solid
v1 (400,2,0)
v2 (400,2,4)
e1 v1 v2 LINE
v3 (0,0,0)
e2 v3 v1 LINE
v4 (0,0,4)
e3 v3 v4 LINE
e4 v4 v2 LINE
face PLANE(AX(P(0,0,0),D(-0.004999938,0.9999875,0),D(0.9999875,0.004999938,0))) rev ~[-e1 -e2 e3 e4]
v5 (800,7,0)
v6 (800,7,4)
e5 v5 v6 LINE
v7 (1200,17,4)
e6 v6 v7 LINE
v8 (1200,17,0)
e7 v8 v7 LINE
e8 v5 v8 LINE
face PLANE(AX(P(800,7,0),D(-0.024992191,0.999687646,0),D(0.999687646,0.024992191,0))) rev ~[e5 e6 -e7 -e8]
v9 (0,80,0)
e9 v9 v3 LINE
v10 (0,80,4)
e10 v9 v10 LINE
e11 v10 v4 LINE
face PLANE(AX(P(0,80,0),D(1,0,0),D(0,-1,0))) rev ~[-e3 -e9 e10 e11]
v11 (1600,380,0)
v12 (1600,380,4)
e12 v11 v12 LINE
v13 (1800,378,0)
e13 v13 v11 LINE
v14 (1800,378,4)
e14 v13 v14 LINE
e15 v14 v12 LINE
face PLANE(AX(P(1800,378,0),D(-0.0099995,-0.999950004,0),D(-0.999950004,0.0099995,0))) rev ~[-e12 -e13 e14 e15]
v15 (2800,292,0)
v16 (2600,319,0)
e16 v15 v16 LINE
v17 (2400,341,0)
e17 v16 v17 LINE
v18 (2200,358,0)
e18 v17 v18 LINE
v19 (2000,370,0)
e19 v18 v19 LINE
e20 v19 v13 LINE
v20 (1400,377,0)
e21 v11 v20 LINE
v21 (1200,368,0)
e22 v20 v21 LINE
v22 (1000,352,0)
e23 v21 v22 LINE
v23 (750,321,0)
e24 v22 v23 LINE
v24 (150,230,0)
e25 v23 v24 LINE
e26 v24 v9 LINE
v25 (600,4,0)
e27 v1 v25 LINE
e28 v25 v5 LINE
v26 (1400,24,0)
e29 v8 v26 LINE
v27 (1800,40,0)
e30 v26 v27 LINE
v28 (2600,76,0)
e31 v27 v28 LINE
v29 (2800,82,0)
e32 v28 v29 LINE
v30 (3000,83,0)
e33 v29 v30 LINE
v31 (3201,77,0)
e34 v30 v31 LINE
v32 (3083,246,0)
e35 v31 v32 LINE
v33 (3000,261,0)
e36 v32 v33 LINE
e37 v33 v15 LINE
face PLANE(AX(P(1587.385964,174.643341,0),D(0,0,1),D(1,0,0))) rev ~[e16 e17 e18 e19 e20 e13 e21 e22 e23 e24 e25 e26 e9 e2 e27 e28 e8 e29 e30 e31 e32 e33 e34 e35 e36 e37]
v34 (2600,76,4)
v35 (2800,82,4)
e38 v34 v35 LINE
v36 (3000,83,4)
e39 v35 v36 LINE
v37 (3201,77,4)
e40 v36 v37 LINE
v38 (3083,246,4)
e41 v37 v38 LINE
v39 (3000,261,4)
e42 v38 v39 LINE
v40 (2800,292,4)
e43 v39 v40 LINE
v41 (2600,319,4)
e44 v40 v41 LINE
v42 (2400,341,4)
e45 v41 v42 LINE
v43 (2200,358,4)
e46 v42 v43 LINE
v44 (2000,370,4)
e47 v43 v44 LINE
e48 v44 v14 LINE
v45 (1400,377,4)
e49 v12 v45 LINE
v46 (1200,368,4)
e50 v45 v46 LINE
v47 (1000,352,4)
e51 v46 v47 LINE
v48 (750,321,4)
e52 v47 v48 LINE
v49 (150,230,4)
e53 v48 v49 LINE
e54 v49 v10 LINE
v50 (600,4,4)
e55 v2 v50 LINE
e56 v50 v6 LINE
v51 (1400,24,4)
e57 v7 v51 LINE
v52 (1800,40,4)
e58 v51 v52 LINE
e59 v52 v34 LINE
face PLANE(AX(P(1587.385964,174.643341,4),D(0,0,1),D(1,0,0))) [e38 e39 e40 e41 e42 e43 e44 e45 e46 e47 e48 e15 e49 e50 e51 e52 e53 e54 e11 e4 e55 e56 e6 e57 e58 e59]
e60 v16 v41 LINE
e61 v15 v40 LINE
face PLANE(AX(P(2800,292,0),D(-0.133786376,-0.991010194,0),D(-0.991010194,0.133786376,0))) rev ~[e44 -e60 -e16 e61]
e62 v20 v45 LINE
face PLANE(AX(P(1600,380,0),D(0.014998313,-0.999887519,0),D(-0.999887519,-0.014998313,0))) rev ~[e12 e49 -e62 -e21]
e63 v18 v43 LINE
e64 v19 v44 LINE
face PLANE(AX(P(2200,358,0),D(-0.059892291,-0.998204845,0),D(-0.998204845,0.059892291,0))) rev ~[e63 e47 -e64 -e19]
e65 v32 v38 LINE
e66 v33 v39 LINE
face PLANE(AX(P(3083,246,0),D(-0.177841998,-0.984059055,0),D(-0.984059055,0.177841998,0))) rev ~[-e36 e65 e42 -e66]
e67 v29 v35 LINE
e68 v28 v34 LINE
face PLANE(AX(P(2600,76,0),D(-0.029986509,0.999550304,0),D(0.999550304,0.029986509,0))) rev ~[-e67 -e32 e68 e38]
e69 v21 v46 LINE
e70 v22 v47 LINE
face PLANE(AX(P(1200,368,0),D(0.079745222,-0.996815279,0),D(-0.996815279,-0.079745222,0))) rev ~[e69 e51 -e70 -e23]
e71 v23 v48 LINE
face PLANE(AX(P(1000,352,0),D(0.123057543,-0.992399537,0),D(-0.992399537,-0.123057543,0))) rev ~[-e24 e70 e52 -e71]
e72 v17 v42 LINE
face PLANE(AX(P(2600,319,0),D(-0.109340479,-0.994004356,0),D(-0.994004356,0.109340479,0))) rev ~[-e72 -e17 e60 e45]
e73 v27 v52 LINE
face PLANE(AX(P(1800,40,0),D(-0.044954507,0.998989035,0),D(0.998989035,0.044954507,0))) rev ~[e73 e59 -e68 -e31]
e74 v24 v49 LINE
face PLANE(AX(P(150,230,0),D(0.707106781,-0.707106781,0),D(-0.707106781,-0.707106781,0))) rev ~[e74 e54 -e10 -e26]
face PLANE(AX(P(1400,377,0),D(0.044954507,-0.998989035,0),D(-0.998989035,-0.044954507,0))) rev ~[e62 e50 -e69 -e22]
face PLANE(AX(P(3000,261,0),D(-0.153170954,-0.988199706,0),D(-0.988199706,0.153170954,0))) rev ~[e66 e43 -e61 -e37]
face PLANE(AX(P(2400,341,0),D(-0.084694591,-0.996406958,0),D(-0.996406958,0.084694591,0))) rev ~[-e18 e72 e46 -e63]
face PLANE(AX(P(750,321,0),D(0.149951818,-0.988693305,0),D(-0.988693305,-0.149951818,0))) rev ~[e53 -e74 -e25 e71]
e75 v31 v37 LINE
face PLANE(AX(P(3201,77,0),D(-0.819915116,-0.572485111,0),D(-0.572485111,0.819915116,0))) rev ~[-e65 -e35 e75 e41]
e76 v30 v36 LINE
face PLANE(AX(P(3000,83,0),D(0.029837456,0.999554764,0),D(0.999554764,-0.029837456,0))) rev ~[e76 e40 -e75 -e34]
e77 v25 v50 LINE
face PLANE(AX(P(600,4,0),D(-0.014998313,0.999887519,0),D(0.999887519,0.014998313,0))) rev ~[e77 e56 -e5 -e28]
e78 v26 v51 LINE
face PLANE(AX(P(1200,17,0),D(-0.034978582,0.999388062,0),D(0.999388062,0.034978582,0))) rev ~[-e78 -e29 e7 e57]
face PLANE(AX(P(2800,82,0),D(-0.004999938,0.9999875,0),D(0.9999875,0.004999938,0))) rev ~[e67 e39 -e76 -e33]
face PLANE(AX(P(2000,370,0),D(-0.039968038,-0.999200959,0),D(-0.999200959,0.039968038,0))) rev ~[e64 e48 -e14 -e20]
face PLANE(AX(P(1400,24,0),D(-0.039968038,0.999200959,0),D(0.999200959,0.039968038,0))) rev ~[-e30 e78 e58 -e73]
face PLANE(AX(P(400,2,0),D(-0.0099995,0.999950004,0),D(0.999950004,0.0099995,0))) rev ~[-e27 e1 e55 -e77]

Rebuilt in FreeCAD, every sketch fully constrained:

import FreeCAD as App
import Part
import Sketcher
Q = App.Units.Quantity

doc = App.newDocument("Part")
body = doc.addObject("PartDesign::Body", "Body")

sketch1 = doc.addObject("Sketcher::SketchObject", "Sketch")
body.addObject(sketch1)
sketch1.AttachmentSupport = (doc.XY_Plane, [""])
sketch1.MapMode = "FlatFace"
sketch1.addGeometry([
    Part.LineSegment(App.Vector(0, 80, 0), App.Vector(0, 0, 0)),
    Part.LineSegment(App.Vector(0, 0, 0), App.Vector(400, 2, 0)),
    Part.LineSegment(App.Vector(400, 2, 0), App.Vector(600, 4, 0)),
    Part.LineSegment(App.Vector(600, 4, 0), App.Vector(800, 7, 0)),
    Part.LineSegment(App.Vector(800, 7, 0), App.Vector(1200, 17, 0)),
    Part.LineSegment(App.Vector(1200, 17, 0), App.Vector(1400, 24, 0)),
    Part.LineSegment(App.Vector(1400, 24, 0), App.Vector(1800, 40, 0)),
    Part.LineSegment(App.Vector(1800, 40, 0), App.Vector(2600, 76, 0)),
    Part.LineSegment(App.Vector(2600, 76, 0), App.Vector(2800, 82, 0)),
    Part.LineSegment(App.Vector(2800, 82, 0), App.Vector(3000, 83, 0)),
    Part.LineSegment(App.Vector(3000, 83, 0), App.Vector(3201, 77, 0)),
    Part.LineSegment(App.Vector(3201, 77, 0), App.Vector(3083, 246, 0)),
    Part.LineSegment(App.Vector(3083, 246, 0), App.Vector(3000, 261, 0)),
    Part.LineSegment(App.Vector(3000, 261, 0), App.Vector(2800, 292, 0)),
    Part.LineSegment(App.Vector(2800, 292, 0), App.Vector(2600, 319, 0)),
    Part.LineSegment(App.Vector(2600, 319, 0), App.Vector(2400, 341, 0)),
    Part.LineSegment(App.Vector(2400, 341, 0), App.Vector(2200, 358, 0)),
    Part.LineSegment(App.Vector(2200, 358, 0), App.Vector(2000, 370, 0)),
    Part.LineSegment(App.Vector(2000, 370, 0), App.Vector(1800, 378, 0)),
    Part.LineSegment(App.Vector(1800, 378, 0), App.Vector(1600, 380, 0)),
    Part.LineSegment(App.Vector(1600, 380, 0), App.Vector(1400, 377, 0)),
    Part.LineSegment(App.Vector(1400, 377, 0), App.Vector(1200, 368, 0)),
    Part.LineSegment(App.Vector(1200, 368, 0), App.Vector(1000, 352, 0)),
    Part.LineSegment(App.Vector(1000, 352, 0), App.Vector(750, 321, 0)),
    Part.LineSegment(App.Vector(750, 321, 0), App.Vector(150, 230, 0)),
    Part.LineSegment(App.Vector(150, 230, 0), App.Vector(0, 80, 0)),
], False)
sketch1.addConstraint([
    Sketcher.Constraint("Coincident", 0, 2, 1, 1),
    Sketcher.Constraint("Coincident", 1, 2, 2, 1),
    Sketcher.Constraint("Coincident", 2, 2, 3, 1),
    Sketcher.Constraint("Coincident", 3, 2, 4, 1),
    Sketcher.Constraint("Coincident", 4, 2, 5, 1),
    Sketcher.Constraint("Coincident", 5, 2, 6, 1),
    Sketcher.Constraint("Coincident", 6, 2, 7, 1),
    Sketcher.Constraint("Coincident", 7, 2, 8, 1),
    Sketcher.Constraint("Coincident", 8, 2, 9, 1),
    Sketcher.Constraint("Coincident", 9, 2, 10, 1),
    Sketcher.Constraint("Coincident", 10, 2, 11, 1),
    Sketcher.Constraint("Coincident", 11, 2, 12, 1),
    Sketcher.Constraint("Coincident", 12, 2, 13, 1),
    Sketcher.Constraint("Coincident", 13, 2, 14, 1),
    Sketcher.Constraint("Coincident", 14, 2, 15, 1),
    Sketcher.Constraint("Coincident", 15, 2, 16, 1),
    Sketcher.Constraint("Coincident", 16, 2, 17, 1),
    Sketcher.Constraint("Coincident", 17, 2, 18, 1),
    Sketcher.Constraint("Coincident", 18, 2, 19, 1),
    Sketcher.Constraint("Coincident", 19, 2, 20, 1),
    Sketcher.Constraint("Coincident", 20, 2, 21, 1),
    Sketcher.Constraint("Coincident", 21, 2, 22, 1),
    Sketcher.Constraint("Coincident", 22, 2, 23, 1),
    Sketcher.Constraint("Coincident", 23, 2, 24, 1),
    Sketcher.Constraint("Coincident", 24, 2, 25, 1),
    Sketcher.Constraint("Coincident", 25, 2, 0, 1),
    Sketcher.Constraint("Vertical", 0),
    Sketcher.Constraint("Coincident", 0, 2, -1, 1),
    Sketcher.Constraint("Parallel", 1, 9),
    Sketcher.Constraint("Parallel", 3, 20),
    Sketcher.Constraint("Parallel", 7, 21),
    Sketcher.Constraint("Vertical", 9, 2, 12, 2),
    Sketcher.Constraint("Vertical", 8, 2, 13, 2),
    Sketcher.Constraint("Vertical", 7, 2, 14, 2),
    Sketcher.Constraint("Vertical", 6, 2, 18, 2),
    Sketcher.Constraint("Vertical", 5, 2, 20, 2),
    Sketcher.Constraint("Vertical", 4, 2, 21, 2),
    Sketcher.Constraint("Equal", 2, 19),
    Sketcher.Constraint("Equal", 3, 20),
    Sketcher.Constraint("DistanceY", 0, 2, 0, 1, Q("80 mm")),
    Sketcher.Constraint("Angle", 25, Q("-135 deg")),
    Sketcher.Constraint("DistanceX", -1, 1, 1, 2, Q("400 mm")),
    Sketcher.Constraint("DistanceY", -1, 1, 1, 2, Q("2 mm")),
    Sketcher.Constraint("DistanceX", -1, 1, 2, 2, Q("600 mm")),
    Sketcher.Constraint("DistanceY", -1, 1, 2, 2, Q("4 mm")),
    Sketcher.Constraint("DistanceX", -1, 1, 3, 2, Q("800 mm")),
    Sketcher.Constraint("DistanceY", -1, 1, 3, 2, Q("7 mm")),
    Sketcher.Constraint("DistanceX", -1, 1, 4, 2, Q("1200 mm")),
    Sketcher.Constraint("DistanceY", -1, 1, 4, 2, Q("17 mm")),
    Sketcher.Constraint("DistanceX", -1, 1, 5, 2, Q("1400 mm")),
    Sketcher.Constraint("DistanceY", -1, 1, 5, 2, Q("24 mm")),
    Sketcher.Constraint("DistanceX", -1, 1, 6, 2, Q("1800 mm")),
    Sketcher.Constraint("DistanceY", -1, 1, 6, 2, Q("40 mm")),
    Sketcher.Constraint("DistanceX", -1, 1, 7, 2, Q("2600 mm")),
    Sketcher.Constraint("DistanceY", -1, 1, 7, 2, Q("76 mm")),
    Sketcher.Constraint("DistanceX", -1, 1, 8, 2, Q("2800 mm")),
    Sketcher.Constraint("DistanceY", -1, 1, 8, 2, Q("82 mm")),
    Sketcher.Constraint("DistanceX", -1, 1, 9, 2, Q("3000 mm")),
    Sketcher.Constraint("DistanceX", -1, 1, 10, 2, Q("3201 mm")),
    Sketcher.Constraint("DistanceY", -1, 1, 10, 2, Q("77 mm")),
    Sketcher.Constraint("DistanceX", -1, 1, 11, 2, Q("3083 mm")),
    Sketcher.Constraint("DistanceY", -1, 1, 11, 2, Q("246 mm")),
    Sketcher.Constraint("DistanceY", -1, 1, 12, 2, Q("261 mm")),
    Sketcher.Constraint("DistanceY", -1, 1, 13, 2, Q("292 mm")),
    Sketcher.Constraint("DistanceY", -1, 1, 14, 2, Q("319 mm")),
    Sketcher.Constraint("DistanceX", -1, 1, 15, 2, Q("2400 mm")),
    Sketcher.Constraint("DistanceY", -1, 1, 15, 2, Q("341 mm")),
    Sketcher.Constraint("DistanceX", -1, 1, 16, 2, Q("2200 mm")),
    Sketcher.Constraint("DistanceY", -1, 1, 16, 2, Q("358 mm")),
    Sketcher.Constraint("DistanceX", -1, 1, 17, 2, Q("2000 mm")),
    Sketcher.Constraint("DistanceY", -1, 1, 17, 2, Q("370 mm")),
    Sketcher.Constraint("DistanceY", -1, 1, 18, 2, Q("378 mm")),
    Sketcher.Constraint("DistanceX", -1, 1, 22, 2, Q("1000 mm")),
    Sketcher.Constraint("DistanceY", -1, 1, 22, 2, Q("352 mm")),
    Sketcher.Constraint("DistanceX", -1, 1, 23, 2, Q("750 mm")),
    Sketcher.Constraint("DistanceY", -1, 1, 23, 2, Q("321 mm")),
    Sketcher.Constraint("DistanceX", -1, 1, 24, 2, Q("150 mm")),
])
pad1 = doc.addObject("PartDesign::Pad", "Pad")
body.addObject(pad1)
pad1.Profile = sketch1
pad1.Length = 4

doc.recompute()
